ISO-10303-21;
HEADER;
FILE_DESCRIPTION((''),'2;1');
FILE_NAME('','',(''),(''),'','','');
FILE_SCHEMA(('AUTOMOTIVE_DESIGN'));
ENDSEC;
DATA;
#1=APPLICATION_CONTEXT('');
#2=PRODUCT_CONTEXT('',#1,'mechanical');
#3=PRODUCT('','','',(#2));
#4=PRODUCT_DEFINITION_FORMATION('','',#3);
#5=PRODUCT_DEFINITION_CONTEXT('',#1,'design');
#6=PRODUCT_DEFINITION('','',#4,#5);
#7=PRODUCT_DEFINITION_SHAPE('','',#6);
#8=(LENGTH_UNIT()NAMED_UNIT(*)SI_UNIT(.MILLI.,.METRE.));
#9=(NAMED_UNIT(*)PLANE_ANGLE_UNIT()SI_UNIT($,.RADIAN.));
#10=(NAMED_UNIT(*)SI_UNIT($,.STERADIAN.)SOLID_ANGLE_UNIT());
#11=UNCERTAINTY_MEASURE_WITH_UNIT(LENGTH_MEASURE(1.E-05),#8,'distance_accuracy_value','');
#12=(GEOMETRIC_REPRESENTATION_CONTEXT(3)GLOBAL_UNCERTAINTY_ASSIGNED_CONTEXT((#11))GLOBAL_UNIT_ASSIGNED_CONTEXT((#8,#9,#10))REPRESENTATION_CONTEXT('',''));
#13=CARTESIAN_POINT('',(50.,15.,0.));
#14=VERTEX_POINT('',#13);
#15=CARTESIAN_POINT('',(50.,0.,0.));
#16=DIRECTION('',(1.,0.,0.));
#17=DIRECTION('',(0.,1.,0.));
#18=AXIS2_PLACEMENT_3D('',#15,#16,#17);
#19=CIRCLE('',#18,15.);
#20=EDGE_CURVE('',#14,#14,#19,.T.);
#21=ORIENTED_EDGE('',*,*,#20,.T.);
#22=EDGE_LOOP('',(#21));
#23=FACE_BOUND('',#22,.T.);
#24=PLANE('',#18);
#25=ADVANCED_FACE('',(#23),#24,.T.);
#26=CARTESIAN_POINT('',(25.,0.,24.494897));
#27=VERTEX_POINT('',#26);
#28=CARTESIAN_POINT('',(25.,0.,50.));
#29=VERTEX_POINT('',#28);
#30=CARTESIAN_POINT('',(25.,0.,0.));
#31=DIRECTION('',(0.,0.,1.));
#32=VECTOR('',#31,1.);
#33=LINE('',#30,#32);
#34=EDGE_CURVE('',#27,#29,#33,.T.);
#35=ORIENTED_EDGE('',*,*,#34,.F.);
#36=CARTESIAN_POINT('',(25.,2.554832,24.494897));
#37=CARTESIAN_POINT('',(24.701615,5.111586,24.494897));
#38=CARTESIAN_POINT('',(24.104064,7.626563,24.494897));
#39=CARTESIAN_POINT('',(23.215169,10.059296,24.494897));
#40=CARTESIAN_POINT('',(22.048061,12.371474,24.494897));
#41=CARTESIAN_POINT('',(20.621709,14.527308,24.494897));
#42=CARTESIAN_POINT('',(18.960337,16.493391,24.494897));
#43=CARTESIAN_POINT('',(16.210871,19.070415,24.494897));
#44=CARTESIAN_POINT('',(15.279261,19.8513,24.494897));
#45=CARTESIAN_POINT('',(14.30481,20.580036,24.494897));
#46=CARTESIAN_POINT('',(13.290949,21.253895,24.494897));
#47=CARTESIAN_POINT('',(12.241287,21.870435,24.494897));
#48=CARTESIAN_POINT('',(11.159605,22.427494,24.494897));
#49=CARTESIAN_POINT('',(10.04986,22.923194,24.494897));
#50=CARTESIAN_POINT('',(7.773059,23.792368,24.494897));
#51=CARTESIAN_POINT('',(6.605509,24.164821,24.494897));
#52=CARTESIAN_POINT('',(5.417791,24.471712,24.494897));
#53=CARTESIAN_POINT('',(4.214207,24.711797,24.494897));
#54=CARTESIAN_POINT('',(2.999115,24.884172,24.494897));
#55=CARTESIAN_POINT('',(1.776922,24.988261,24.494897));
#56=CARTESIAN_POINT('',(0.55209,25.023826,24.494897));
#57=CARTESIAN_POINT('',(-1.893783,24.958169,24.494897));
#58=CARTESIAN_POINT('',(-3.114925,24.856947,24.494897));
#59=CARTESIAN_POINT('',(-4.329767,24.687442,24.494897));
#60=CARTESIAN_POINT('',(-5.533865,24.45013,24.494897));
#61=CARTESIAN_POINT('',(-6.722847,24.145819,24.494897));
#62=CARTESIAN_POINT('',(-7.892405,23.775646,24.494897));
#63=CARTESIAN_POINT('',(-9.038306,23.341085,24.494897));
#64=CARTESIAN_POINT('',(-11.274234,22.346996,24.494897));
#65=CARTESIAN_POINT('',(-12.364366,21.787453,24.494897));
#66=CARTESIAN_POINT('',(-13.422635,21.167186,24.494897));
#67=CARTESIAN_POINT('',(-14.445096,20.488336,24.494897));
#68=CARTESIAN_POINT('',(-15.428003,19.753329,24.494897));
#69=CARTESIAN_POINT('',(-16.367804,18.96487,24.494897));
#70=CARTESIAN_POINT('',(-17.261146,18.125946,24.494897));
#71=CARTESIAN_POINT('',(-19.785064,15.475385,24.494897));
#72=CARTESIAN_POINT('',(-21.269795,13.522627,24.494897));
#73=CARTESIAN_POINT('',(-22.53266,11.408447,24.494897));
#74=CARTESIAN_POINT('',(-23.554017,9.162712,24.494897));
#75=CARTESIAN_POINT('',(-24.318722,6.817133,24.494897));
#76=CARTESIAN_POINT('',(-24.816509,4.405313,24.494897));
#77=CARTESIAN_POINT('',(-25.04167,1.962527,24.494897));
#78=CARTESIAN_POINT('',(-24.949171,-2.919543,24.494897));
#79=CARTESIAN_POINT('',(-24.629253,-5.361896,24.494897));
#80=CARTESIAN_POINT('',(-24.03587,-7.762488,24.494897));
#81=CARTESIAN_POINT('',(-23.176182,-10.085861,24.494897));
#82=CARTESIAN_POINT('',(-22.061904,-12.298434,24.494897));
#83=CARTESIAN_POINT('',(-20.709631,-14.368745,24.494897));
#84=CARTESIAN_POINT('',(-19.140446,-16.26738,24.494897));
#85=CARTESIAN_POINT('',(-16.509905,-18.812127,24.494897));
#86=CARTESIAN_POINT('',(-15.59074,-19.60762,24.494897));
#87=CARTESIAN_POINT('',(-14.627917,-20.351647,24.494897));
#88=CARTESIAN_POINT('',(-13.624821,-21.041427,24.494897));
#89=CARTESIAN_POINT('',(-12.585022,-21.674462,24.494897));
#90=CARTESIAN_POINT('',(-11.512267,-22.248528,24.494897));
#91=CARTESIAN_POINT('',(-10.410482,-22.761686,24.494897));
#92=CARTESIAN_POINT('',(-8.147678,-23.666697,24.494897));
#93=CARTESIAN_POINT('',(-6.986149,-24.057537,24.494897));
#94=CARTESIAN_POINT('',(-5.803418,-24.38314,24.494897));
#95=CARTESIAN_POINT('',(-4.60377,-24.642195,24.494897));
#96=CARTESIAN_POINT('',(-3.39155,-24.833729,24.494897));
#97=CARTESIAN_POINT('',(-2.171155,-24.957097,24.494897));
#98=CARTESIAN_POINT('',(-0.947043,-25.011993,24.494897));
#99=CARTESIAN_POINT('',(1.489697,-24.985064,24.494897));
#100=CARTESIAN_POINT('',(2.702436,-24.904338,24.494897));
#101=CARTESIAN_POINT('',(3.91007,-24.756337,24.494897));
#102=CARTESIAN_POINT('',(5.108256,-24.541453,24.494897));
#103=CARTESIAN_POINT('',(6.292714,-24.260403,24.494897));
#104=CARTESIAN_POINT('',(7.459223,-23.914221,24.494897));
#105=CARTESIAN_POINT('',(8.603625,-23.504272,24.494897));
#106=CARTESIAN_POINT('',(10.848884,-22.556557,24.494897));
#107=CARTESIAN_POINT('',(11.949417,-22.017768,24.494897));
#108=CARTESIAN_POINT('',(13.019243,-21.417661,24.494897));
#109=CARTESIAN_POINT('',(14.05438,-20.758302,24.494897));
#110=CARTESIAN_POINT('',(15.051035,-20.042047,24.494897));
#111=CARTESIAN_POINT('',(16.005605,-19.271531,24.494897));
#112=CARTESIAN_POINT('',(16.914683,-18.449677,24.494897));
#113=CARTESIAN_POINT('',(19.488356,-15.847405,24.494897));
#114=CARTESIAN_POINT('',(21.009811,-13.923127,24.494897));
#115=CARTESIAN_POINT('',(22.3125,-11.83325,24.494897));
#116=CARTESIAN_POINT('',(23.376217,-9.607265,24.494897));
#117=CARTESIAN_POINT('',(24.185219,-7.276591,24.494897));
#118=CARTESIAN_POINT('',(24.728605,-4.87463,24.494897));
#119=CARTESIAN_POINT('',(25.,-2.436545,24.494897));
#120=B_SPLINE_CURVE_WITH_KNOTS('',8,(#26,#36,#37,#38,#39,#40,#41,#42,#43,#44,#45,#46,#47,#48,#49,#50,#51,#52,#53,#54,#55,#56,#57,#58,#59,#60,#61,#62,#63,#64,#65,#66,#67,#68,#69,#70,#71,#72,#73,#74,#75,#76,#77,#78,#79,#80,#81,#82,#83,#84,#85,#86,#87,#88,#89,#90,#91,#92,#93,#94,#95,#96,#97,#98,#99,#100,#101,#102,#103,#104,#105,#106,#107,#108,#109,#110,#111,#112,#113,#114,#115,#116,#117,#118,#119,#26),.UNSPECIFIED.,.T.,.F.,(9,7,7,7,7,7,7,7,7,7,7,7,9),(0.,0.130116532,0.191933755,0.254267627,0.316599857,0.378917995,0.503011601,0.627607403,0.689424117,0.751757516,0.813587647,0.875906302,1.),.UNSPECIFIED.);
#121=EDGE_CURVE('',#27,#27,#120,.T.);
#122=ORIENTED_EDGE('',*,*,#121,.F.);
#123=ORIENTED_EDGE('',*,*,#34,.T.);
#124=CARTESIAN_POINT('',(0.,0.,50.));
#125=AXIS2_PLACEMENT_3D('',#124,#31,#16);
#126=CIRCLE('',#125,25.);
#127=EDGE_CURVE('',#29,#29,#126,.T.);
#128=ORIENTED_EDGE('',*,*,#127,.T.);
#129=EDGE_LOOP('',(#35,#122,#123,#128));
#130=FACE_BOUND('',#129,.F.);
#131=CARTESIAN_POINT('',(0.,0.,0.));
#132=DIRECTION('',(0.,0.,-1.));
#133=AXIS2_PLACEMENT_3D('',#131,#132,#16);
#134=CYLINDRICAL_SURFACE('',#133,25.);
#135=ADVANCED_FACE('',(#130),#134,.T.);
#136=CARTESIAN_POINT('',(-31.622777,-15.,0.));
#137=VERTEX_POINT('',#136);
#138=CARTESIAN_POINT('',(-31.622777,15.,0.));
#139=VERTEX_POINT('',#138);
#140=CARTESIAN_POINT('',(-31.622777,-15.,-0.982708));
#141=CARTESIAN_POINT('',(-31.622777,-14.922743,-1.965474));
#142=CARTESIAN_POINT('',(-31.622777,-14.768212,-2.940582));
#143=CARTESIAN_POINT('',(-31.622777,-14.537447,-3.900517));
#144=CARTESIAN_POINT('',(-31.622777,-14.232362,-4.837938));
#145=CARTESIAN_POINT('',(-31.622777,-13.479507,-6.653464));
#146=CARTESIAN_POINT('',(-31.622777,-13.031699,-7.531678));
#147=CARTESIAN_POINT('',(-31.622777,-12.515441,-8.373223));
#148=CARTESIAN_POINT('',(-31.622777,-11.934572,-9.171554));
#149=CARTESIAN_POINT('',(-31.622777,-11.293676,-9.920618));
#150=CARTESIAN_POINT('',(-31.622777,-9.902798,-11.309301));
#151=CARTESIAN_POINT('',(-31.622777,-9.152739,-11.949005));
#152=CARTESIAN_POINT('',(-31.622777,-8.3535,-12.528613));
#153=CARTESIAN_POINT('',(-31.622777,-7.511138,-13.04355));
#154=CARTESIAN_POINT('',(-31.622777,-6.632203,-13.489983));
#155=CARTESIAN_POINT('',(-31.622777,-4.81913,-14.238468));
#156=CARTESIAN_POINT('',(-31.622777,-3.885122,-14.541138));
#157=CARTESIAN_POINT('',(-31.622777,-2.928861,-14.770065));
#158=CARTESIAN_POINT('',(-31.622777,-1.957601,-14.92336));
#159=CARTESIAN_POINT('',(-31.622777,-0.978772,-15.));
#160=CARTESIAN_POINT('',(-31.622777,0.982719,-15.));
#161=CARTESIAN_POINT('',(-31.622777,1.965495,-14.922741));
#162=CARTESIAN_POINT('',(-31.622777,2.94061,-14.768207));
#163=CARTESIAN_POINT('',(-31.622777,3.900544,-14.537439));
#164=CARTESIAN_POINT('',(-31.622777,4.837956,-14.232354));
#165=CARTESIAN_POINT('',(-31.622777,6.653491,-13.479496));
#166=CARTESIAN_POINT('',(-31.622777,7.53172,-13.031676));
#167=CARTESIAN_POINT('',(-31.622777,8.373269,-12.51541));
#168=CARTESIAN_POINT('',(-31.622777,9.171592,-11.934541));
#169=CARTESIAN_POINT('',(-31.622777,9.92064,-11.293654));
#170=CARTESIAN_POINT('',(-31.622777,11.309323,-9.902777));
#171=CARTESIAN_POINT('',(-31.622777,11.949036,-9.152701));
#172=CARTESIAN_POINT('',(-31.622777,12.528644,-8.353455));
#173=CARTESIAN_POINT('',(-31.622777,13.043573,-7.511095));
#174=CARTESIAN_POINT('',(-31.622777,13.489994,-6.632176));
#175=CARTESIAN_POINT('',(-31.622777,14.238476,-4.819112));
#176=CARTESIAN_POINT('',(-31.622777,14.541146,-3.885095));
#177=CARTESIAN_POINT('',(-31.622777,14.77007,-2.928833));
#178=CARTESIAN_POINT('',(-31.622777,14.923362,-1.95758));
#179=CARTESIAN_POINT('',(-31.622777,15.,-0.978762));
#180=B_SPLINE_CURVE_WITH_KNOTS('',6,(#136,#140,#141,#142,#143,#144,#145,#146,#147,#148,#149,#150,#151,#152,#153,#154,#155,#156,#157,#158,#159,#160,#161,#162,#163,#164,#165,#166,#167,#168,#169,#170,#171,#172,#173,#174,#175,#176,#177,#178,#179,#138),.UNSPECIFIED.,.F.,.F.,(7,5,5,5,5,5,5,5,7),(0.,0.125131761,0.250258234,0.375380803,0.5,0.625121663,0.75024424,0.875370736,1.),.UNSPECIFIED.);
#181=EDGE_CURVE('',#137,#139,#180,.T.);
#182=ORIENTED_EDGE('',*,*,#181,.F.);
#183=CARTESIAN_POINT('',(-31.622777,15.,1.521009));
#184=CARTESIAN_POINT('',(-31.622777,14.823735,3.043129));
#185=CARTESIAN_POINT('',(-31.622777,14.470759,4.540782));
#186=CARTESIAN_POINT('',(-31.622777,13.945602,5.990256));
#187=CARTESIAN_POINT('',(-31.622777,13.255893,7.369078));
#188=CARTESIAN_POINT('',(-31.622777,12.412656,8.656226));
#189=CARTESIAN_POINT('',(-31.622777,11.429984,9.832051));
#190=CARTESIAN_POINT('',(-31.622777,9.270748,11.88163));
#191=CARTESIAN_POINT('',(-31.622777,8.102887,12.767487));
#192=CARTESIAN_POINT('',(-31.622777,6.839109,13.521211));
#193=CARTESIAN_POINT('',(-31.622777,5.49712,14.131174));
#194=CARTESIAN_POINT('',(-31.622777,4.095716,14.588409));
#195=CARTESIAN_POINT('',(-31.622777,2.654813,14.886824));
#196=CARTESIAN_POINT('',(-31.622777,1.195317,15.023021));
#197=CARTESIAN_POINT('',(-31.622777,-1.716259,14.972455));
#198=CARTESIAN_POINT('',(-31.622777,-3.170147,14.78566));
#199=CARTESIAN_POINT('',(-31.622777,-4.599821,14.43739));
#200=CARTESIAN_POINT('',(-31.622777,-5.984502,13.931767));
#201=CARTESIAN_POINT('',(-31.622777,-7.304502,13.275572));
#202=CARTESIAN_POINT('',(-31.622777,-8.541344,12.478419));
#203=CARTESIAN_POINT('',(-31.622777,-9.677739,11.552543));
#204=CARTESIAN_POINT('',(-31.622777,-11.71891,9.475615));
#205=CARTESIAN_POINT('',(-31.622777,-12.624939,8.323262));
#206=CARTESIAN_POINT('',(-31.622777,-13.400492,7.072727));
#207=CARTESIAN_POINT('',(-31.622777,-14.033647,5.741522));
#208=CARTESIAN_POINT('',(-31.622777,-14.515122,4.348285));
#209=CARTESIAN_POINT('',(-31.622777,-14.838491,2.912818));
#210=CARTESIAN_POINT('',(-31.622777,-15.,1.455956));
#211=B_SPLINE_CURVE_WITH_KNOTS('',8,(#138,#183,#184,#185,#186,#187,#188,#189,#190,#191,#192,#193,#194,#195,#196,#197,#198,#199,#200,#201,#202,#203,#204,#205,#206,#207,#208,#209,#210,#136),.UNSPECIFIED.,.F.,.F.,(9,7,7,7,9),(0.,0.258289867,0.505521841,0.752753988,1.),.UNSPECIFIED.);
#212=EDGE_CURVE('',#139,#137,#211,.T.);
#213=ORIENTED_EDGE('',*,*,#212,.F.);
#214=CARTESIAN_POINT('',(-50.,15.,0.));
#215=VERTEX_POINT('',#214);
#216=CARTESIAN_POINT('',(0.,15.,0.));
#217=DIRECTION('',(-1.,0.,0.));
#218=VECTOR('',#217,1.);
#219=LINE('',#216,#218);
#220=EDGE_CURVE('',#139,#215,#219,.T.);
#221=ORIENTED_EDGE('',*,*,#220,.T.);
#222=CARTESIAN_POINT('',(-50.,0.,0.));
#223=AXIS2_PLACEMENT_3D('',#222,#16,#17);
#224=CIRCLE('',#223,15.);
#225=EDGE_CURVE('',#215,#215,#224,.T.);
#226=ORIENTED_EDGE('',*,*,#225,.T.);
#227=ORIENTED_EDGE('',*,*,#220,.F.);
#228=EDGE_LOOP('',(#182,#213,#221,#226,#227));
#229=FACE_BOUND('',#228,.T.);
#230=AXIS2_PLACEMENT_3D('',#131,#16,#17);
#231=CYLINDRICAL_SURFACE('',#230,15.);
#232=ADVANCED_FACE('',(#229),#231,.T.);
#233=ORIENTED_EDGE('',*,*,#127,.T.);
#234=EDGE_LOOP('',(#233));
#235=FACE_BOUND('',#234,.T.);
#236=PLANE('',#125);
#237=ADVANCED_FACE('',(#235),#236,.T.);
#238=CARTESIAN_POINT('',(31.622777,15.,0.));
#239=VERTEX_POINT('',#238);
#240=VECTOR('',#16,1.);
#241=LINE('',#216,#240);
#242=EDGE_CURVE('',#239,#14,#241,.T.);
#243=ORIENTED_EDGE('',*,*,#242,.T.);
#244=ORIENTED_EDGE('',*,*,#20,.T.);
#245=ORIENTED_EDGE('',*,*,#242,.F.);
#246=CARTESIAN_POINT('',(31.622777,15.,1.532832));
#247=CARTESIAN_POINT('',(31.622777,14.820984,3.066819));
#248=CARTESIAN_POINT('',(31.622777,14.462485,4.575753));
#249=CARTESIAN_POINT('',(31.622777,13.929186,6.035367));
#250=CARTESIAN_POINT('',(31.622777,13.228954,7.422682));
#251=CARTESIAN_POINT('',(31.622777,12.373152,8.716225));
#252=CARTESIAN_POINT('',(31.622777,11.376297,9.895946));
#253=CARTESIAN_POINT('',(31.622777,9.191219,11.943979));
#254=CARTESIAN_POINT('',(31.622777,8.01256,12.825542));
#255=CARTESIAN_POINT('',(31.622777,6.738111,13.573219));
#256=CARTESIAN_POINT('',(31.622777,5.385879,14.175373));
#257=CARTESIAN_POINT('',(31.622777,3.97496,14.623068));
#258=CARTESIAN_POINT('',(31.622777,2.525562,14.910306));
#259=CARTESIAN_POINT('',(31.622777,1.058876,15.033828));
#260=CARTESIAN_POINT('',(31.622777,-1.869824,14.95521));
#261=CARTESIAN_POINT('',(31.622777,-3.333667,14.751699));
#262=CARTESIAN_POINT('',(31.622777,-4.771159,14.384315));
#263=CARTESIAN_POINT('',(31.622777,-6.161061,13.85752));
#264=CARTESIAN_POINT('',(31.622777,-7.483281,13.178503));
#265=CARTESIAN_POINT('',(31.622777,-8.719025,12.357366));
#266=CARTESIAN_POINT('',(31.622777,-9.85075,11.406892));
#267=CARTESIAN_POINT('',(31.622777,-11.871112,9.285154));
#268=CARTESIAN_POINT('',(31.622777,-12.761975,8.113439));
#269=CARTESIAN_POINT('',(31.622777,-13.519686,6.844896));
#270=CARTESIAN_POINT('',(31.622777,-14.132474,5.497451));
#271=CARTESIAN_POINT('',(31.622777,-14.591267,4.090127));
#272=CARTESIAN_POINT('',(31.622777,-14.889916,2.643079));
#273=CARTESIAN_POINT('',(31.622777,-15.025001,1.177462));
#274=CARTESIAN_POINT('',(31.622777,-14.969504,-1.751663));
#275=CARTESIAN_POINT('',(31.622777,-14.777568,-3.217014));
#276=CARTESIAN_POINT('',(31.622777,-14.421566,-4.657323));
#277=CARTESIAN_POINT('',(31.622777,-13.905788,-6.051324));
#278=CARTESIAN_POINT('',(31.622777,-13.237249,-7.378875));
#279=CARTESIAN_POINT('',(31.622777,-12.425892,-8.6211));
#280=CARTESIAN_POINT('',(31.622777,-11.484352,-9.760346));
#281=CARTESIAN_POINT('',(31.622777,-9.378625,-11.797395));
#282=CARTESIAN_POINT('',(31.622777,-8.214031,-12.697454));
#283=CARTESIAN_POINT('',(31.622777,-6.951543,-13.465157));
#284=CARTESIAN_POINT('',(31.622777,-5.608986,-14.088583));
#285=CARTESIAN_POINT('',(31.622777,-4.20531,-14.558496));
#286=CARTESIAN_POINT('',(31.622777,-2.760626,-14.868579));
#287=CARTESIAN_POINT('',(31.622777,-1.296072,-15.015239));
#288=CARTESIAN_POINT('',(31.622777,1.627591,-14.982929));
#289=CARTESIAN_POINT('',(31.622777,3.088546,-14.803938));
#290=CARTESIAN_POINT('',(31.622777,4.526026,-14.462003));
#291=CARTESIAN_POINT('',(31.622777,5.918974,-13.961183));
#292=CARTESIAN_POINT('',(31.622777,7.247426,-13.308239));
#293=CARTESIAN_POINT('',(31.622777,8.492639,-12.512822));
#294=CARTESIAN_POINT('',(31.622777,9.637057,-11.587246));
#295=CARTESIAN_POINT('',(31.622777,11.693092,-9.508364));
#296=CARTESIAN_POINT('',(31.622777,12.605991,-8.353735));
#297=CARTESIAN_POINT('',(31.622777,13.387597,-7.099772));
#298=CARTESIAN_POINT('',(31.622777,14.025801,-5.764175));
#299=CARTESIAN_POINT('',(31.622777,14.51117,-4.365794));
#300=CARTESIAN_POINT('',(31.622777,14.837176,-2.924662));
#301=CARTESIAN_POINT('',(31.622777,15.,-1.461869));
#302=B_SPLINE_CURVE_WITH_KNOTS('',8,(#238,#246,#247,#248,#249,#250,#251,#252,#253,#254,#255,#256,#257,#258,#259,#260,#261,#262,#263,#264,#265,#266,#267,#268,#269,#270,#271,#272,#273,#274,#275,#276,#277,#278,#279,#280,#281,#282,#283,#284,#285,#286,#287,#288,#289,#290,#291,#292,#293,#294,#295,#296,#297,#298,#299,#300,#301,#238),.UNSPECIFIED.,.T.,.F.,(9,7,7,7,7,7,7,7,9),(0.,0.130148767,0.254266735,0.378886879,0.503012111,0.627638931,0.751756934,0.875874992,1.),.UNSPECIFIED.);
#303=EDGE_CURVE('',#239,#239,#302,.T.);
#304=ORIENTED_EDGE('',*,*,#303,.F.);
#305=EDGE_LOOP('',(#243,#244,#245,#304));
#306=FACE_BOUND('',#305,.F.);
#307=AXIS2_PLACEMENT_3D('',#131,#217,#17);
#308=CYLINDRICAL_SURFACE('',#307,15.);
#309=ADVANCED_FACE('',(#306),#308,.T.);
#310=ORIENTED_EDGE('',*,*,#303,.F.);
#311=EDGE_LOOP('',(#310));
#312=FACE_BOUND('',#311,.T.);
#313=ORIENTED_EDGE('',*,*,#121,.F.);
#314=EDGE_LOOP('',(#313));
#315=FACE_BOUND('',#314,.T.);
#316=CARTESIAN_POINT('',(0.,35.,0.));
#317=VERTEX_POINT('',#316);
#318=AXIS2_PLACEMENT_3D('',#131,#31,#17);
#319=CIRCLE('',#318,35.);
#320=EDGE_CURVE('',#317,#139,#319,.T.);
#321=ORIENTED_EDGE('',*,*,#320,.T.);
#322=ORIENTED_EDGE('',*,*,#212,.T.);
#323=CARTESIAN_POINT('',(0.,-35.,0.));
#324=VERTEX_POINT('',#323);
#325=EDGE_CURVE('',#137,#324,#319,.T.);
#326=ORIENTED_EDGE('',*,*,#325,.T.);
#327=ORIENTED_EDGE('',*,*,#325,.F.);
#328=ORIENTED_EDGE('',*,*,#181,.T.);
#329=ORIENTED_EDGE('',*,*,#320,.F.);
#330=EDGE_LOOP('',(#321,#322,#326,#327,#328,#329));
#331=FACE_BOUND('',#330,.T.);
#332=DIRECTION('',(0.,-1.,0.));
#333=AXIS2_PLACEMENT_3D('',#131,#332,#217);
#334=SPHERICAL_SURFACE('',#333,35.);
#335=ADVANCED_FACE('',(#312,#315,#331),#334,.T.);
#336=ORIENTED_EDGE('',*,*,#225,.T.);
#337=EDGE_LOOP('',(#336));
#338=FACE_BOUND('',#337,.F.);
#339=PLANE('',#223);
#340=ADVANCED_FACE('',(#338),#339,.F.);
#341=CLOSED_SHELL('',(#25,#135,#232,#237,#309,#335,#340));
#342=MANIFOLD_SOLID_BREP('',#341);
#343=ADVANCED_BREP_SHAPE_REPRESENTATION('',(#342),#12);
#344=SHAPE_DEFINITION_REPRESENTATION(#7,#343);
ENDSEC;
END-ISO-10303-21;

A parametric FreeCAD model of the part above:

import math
import FreeCAD as App
import Part
import Sketcher

doc = App.newDocument("Part")
body = doc.addObject("PartDesign::Body", "Body")

sketch1 = body.newObject("Sketcher::SketchObject", "Sketch")
sketch1.AttachmentSupport = (doc.getObject("XY_Plane"), [""])
sketch1.MapMode = "FlatFace"
sketch1.addGeometry(Part.LineSegment(App.Vector(0, -35, 0), App.Vector(0, 35, 0)), False)
sketch1.addGeometry(Part.ArcOfCircle(Part.Circle(App.Vector(0, 0, 0), App.Vector(0, 0, 1), 35), math.radians(90), math.radians(270)), False)
sketch1.addConstraint(Sketcher.Constraint("Coincident", 0, 1, 1, 2))
sketch1.addConstraint(Sketcher.Constraint("Coincident", 1, 1, 0, 2))
sketch1.addConstraint(Sketcher.Constraint("Vertical", 0))
sketch1.addConstraint(Sketcher.Constraint("Coincident", 1, 3, -1, 1))
sketch1.addConstraint(Sketcher.Constraint("PointOnObject", 0, 1, -2))
sketch1.addConstraint(Sketcher.Constraint("Radius", 1, 35.0))
revolution = body.newObject("PartDesign::Revolution", "Revolution")
revolution.Profile = sketch1
revolution.ReferenceAxis = (sketch1, ["V_Axis"])
revolution.Angle = 360

sketch2 = body.newObject("Sketcher::SketchObject", "Sketch001")
sketch2.AttachmentSupport = (doc.getObject("XY_Plane"), [""])
sketch2.MapMode = "FlatFace"
sketch2.addGeometry(Part.Circle(App.Vector(0, 0, 0), App.Vector(0, 0, 1), 25), False)
sketch2.addConstraint(Sketcher.Constraint("Coincident", 0, 3, -1, 1))
sketch2.addConstraint(Sketcher.Constraint("Diameter", 0, 50.0))
pad1 = body.newObject("PartDesign::Pad", "Pad")
pad1.Profile = sketch2
pad1.Length = 50

sketch3 = body.newObject("Sketcher::SketchObject", "Sketch002")
sketch3.AttachmentSupport = (doc.getObject("YZ_Plane"), [""])
sketch3.MapMode = "FlatFace"
sketch3.addGeometry(Part.Circle(App.Vector(0, 0, 0), App.Vector(0, 0, 1), 15), False)
sketch3.addConstraint(Sketcher.Constraint("Coincident", 0, 3, -1, 1))
sketch3.addConstraint(Sketcher.Constraint("Diameter", 0, 30.0))
pad2 = body.newObject("PartDesign::Pad", "Pad001")
pad2.Profile = sketch3
pad2.Length = 100
pad2.Midplane = True

doc.recompute()
